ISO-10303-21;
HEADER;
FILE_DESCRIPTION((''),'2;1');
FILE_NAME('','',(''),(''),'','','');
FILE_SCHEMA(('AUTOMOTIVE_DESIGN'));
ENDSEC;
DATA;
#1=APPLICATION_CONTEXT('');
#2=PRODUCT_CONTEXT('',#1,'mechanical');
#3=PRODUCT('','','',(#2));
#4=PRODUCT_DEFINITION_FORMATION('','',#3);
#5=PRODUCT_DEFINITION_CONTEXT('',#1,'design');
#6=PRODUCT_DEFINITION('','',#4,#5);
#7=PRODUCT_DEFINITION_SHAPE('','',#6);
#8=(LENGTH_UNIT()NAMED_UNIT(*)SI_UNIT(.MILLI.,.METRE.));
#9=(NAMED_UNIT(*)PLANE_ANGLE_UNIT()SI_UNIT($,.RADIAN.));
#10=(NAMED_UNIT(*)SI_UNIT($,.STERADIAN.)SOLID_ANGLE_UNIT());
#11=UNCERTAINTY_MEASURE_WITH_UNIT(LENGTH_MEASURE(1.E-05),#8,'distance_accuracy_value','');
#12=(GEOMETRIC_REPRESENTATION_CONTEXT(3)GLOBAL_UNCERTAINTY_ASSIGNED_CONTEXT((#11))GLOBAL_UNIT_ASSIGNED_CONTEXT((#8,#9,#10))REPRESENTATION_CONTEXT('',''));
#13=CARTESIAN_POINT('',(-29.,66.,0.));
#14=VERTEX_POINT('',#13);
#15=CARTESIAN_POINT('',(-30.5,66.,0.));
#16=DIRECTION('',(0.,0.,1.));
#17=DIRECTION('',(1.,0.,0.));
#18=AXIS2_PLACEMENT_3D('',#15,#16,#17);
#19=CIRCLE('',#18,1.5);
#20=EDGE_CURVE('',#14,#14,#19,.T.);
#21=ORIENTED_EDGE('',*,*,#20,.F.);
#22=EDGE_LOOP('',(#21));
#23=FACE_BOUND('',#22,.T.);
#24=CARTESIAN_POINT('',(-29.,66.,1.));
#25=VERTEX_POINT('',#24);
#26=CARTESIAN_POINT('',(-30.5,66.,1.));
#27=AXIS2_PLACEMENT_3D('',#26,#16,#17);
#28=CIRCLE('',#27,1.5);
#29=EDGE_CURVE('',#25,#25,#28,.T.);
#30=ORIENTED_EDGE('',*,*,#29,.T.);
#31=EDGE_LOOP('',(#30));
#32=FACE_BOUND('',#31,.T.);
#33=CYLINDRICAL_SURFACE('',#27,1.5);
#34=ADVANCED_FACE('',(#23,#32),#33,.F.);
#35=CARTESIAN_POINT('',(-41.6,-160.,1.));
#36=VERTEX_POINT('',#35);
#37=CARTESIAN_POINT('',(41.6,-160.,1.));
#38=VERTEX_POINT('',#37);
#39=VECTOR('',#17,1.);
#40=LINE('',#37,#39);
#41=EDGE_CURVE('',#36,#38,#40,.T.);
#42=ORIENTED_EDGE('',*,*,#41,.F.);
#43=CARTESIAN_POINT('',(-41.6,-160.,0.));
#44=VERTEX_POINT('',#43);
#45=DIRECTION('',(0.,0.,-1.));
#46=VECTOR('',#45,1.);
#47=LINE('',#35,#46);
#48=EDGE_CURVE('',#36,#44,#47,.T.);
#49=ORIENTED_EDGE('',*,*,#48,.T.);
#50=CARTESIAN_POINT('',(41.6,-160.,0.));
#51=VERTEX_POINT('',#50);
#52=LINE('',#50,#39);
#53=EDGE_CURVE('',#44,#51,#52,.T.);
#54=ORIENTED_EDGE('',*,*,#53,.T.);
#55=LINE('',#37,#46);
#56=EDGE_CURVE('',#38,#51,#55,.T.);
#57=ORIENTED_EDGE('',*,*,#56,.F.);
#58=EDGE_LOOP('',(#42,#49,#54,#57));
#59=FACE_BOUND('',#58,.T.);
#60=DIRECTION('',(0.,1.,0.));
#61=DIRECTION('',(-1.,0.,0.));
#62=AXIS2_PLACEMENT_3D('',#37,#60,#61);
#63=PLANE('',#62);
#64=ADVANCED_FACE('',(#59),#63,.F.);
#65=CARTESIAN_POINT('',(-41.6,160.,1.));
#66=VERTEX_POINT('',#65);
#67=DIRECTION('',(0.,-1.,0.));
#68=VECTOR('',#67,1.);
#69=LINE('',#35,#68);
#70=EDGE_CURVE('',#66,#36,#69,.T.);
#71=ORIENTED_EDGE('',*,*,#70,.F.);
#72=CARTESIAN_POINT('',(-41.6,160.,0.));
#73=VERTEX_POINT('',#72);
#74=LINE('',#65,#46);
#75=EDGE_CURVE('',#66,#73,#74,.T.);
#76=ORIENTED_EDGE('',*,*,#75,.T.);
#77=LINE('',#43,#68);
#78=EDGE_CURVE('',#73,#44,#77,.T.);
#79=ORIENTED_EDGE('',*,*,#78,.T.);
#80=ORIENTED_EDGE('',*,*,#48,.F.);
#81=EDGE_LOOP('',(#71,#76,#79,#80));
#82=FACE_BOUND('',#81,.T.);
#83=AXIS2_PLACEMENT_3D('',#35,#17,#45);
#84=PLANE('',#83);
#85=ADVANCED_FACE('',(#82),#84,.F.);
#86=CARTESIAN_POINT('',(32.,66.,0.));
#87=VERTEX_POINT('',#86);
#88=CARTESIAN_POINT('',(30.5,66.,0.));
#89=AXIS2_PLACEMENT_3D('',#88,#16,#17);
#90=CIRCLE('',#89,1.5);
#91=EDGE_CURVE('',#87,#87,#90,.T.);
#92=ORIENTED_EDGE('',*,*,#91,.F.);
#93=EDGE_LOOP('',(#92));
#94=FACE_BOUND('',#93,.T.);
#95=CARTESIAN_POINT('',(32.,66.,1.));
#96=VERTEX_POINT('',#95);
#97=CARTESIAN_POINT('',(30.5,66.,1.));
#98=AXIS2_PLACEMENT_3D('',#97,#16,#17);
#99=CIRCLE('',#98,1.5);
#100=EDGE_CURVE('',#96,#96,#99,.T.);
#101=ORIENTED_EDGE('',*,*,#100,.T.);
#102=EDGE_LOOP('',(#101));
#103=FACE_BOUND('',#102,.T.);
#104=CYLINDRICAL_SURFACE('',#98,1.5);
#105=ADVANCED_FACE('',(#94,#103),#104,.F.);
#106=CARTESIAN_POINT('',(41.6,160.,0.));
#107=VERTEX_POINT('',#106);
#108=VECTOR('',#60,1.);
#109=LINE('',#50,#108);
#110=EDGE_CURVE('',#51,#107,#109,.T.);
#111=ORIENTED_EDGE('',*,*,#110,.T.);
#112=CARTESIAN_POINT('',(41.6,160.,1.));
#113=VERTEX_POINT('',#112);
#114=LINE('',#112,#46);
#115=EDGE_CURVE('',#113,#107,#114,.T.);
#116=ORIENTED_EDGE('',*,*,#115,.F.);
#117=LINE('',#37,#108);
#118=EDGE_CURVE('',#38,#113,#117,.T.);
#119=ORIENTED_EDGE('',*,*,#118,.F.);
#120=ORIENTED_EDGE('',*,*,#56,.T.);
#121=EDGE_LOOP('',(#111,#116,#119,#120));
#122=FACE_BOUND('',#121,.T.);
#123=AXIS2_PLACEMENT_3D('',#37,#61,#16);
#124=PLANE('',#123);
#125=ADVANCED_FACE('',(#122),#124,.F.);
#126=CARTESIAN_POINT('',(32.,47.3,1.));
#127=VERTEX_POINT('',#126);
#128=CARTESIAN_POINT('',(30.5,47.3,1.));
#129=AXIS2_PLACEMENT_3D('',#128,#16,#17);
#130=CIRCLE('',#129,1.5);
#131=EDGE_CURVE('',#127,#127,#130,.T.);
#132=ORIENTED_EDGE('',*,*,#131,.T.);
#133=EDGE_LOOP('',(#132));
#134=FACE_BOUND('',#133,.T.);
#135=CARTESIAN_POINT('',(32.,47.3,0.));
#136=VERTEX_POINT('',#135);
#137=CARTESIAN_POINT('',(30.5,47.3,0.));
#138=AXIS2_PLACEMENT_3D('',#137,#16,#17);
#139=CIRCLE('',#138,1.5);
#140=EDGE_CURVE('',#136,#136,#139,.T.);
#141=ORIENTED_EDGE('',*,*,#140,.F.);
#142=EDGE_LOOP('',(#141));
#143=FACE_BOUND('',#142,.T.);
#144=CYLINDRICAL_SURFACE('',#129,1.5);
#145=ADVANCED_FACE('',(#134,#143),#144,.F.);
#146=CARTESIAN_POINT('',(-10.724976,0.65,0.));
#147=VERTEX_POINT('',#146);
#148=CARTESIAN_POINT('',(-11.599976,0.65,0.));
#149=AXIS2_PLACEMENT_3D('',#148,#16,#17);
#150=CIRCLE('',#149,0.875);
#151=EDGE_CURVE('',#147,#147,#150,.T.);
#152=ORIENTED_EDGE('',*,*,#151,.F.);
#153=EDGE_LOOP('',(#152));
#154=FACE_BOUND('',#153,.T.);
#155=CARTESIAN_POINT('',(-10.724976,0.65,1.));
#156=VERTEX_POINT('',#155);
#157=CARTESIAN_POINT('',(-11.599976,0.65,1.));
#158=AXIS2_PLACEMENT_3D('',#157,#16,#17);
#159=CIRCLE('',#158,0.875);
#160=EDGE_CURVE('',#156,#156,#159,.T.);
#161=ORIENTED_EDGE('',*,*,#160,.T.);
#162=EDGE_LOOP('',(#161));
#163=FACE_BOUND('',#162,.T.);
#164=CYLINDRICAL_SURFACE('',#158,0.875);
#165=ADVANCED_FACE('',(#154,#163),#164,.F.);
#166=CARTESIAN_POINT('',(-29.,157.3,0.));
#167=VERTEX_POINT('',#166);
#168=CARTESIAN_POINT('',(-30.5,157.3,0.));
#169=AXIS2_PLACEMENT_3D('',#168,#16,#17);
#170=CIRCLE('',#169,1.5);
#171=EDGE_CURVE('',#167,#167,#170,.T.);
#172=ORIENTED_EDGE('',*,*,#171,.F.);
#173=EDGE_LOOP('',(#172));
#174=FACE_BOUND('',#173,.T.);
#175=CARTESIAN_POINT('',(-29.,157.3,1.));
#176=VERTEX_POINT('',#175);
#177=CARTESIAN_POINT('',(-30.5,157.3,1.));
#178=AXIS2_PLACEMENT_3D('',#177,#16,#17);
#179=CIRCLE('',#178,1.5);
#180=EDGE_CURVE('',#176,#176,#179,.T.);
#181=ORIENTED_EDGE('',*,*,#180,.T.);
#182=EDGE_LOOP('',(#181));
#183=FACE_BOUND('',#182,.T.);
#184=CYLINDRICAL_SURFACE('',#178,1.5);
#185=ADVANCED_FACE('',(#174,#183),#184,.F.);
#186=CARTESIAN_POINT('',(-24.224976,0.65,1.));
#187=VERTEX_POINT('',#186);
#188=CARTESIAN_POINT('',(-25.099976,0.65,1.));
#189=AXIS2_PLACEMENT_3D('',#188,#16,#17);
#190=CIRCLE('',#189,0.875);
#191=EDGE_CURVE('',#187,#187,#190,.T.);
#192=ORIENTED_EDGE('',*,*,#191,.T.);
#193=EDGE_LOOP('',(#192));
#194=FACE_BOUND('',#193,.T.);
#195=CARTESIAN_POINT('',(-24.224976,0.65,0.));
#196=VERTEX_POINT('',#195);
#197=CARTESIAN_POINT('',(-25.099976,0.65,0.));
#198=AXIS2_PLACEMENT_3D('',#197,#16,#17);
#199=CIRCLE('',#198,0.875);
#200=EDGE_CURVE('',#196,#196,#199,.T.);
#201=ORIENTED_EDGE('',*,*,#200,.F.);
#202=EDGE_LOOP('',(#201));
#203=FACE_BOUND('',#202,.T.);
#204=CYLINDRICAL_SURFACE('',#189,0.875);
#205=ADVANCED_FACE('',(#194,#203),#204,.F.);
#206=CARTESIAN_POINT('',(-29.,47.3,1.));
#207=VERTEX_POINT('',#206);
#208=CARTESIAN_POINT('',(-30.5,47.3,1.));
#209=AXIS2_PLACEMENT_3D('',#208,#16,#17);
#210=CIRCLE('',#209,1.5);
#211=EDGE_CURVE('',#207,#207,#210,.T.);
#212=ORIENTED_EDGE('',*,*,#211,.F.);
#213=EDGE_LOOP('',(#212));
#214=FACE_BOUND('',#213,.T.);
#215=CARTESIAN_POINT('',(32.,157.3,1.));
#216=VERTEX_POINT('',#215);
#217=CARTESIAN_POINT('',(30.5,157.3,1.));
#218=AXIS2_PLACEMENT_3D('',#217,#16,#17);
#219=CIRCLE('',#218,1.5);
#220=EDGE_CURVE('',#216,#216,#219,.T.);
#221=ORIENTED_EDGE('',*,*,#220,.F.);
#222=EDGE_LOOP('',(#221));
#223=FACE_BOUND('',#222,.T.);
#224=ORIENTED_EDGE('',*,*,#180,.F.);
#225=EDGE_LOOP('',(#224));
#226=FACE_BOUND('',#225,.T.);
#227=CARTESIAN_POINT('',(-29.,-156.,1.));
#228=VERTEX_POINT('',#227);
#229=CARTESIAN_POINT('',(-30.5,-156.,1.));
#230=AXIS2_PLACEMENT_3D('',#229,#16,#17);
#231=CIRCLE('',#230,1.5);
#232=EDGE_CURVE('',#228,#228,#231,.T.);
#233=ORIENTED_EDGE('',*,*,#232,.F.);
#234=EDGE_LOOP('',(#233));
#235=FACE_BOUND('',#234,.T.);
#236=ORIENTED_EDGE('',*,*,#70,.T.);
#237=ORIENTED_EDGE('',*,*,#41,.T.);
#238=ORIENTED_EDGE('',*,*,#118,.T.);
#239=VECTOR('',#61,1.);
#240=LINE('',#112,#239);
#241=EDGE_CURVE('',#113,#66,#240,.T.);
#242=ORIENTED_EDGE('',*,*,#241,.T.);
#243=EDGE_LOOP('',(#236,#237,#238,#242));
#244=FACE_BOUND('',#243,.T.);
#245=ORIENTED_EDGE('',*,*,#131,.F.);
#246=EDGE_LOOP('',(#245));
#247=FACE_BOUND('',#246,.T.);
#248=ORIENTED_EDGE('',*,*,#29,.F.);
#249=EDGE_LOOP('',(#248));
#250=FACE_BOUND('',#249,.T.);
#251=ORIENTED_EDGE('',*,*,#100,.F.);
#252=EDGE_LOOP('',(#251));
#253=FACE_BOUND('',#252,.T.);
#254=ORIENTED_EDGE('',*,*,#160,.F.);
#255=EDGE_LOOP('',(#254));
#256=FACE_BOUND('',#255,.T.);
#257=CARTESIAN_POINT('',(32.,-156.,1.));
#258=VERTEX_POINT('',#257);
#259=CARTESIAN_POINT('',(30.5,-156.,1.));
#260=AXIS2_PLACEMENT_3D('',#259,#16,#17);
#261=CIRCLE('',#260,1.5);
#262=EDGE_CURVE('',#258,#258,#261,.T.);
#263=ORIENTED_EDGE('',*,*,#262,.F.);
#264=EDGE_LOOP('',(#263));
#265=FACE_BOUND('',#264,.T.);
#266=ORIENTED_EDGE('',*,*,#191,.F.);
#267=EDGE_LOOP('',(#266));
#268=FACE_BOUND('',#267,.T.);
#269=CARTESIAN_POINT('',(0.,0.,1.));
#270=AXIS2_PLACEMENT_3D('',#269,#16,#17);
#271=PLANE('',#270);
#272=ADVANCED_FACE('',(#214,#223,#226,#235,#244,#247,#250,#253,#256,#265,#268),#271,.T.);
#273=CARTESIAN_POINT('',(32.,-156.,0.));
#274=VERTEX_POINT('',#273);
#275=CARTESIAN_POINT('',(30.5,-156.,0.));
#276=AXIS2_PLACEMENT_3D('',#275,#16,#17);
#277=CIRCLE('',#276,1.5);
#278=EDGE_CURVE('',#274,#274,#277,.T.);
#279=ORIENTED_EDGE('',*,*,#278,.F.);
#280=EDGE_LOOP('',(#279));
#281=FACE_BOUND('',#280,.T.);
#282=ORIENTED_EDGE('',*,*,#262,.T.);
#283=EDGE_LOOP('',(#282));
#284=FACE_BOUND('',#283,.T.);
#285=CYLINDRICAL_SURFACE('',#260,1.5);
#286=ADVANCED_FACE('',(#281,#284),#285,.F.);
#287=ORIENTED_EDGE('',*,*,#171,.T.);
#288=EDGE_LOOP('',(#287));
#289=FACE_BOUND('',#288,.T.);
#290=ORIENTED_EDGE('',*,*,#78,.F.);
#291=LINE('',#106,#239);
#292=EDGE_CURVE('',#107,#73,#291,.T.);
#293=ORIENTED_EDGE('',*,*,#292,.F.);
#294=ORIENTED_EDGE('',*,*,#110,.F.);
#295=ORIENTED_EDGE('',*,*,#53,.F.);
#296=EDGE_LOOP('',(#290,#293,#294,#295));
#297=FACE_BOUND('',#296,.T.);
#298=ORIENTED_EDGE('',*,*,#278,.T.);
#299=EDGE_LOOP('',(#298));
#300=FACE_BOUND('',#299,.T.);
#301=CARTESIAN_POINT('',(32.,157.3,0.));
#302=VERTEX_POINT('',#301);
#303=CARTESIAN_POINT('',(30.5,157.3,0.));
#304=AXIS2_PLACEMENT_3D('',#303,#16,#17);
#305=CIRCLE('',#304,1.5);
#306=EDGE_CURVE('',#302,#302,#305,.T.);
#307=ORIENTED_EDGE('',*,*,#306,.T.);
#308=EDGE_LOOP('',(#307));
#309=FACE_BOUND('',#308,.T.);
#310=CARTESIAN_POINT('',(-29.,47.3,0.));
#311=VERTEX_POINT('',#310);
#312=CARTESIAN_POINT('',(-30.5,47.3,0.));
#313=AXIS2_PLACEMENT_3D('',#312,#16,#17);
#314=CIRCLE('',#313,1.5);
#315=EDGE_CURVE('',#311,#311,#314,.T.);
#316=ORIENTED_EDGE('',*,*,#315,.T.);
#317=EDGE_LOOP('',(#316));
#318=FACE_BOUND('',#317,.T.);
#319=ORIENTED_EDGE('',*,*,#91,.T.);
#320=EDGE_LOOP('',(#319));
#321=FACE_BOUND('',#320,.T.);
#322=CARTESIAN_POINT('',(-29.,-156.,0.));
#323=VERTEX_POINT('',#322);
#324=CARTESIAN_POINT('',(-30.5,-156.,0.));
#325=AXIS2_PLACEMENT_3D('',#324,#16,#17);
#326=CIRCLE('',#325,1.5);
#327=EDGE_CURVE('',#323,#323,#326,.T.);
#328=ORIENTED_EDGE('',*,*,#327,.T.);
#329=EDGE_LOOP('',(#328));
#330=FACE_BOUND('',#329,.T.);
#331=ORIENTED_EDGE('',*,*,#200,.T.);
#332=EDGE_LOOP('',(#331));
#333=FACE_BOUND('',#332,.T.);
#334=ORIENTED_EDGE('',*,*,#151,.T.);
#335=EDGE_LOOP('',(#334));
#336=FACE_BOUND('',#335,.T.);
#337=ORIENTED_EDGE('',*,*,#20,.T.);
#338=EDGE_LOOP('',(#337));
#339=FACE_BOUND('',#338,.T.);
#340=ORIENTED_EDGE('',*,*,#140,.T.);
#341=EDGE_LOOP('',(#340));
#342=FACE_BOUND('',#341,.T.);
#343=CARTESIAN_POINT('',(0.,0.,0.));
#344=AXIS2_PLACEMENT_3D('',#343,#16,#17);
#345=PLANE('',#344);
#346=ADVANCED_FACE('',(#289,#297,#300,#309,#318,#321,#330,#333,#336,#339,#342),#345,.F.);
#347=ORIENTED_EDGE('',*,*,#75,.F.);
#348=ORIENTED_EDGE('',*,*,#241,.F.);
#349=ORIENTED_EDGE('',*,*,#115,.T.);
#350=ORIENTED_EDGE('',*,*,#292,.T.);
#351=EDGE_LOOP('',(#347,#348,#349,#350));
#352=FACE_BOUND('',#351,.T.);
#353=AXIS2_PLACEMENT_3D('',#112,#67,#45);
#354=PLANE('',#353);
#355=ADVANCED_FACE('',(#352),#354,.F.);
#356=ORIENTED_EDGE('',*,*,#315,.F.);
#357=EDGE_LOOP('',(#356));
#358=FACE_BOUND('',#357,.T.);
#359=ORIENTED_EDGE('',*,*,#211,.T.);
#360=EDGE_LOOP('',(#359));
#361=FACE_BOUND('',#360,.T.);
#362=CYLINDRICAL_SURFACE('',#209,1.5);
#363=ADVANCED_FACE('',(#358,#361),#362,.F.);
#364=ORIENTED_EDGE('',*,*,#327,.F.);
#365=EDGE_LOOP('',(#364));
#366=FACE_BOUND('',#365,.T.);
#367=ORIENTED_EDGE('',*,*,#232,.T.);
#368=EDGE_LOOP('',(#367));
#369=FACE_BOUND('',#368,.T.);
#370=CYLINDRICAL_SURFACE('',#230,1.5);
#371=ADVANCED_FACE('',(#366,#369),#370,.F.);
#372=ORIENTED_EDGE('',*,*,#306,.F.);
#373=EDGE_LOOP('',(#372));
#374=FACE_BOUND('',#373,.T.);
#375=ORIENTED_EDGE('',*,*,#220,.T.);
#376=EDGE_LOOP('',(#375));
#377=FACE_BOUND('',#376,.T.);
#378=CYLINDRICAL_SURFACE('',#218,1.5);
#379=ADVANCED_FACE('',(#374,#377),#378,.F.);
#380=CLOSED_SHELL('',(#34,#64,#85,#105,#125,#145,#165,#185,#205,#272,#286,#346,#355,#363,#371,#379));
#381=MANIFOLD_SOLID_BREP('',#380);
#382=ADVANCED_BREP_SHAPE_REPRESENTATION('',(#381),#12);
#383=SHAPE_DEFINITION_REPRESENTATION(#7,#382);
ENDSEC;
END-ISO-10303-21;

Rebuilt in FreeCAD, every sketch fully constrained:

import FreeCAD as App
import Part
import Sketcher

V = App.Vector
Q = App.Units.Quantity


def add_polygon(sketch, points):
    """Adds a closed chain of lines whose ends are joined by coincident constraints."""
    first, n = sketch.GeometryCount, len(points)
    for a, b in zip(points, points[1:] + points[:1]):
        sketch.addGeometry(Part.LineSegment(App.Vector(*a, 0), App.Vector(*b, 0)), False)
    for i in range(n):
        sketch.addConstraint(Sketcher.Constraint("Coincident", first + i, 2, first + (i + 1) % n, 1))

doc = App.newDocument("Part")
body = doc.addObject("PartDesign::Body", "Body")

# Sketch on XY plane
sketch1 = body.newObject("Sketcher::SketchObject", "Sketch")
sketch1.AttachmentSupport = (doc.getObject("XY_Plane"), [""])
sketch1.MapMode = "FlatFace"
add_polygon(sketch1, [(-42, 160), (-42, -160), (42, -160), (42, 160)])  # lines 0-3
sketch1.addConstraint(Sketcher.Constraint("Vertical", 0))
sketch1.addConstraint(Sketcher.Constraint("Horizontal", 1))
sketch1.addConstraint(Sketcher.Constraint("Vertical", 2))
sketch1.addConstraint(Sketcher.Constraint("Horizontal", 3))
sketch1.addConstraint(Sketcher.Constraint("Symmetric", 0, 2, 2, 2, -1, 1))
sketch1.addConstraint(Sketcher.Constraint("DistanceY", 0, 2, 0, 1, Q("320 mm")))
sketch1.addConstraint(Sketcher.Constraint("DistanceX", 1, 1, 1, 2, Q("83.2 mm")))
pad1 = body.newObject("PartDesign::Pad", "Pad")
pad1.Profile = sketch1
pad1.Length = 1

# Sketch on XY plane
sketch2 = body.newObject("Sketcher::SketchObject", "Sketch001")
sketch2.AttachmentSupport = (doc.getObject("XY_Plane"), [""])
sketch2.MapMode = "FlatFace"
sketch2.AttachmentOffset = App.Placement(V(0, 0, 1), App.Rotation())
sketch2.addGeometry(Part.Circle(V(-30.5, 66, 0), V(0, 0, 1), 1.5), False)
sketch2.addGeometry(Part.Circle(V(30.5, 66, 0), V(0, 0, 1), 1.5), False)
sketch2.addGeometry(Part.Circle(V(30.5, -156, 0), V(0, 0, 1), 1.5), False)
sketch2.addGeometry(Part.Circle(V(-30.5, -156, 0), V(0, 0, 1), 1.5), False)
sketch2.addGeometry(Part.Circle(V(-30.5, 157.3, 0), V(0, 0, 1), 1.5), False)
sketch2.addGeometry(Part.Circle(V(30.5, 157.3, 0), V(0, 0, 1), 1.5), False)
sketch2.addGeometry(Part.Circle(V(-30.5, 47.3, 0), V(0, 0, 1), 1.5), False)
sketch2.addGeometry(Part.Circle(V(30.5, 47.3, 0), V(0, 0, 1), 1.5), False)
sketch2.addConstraint(Sketcher.Constraint("Equal", 0, 1))
sketch2.addConstraint(Sketcher.Constraint("Equal", 1, 2))
sketch2.addConstraint(Sketcher.Constraint("Equal", 2, 3))
sketch2.addConstraint(Sketcher.Constraint("Equal", 3, 4))
sketch2.addConstraint(Sketcher.Constraint("Equal", 4, 5))
sketch2.addConstraint(Sketcher.Constraint("Equal", 5, 6))
sketch2.addConstraint(Sketcher.Constraint("Equal", 6, 7))
sketch2.addConstraint(Sketcher.Constraint("Symmetric", 0, 3, 1, 3, -2))
sketch2.addConstraint(Sketcher.Constraint("Symmetric", 2, 3, 3, 3, -2))
sketch2.addConstraint(Sketcher.Constraint("Symmetric", 4, 3, 5, 3, -2))
sketch2.addConstraint(Sketcher.Constraint("Symmetric", 6, 3, 7, 3, -2))
sketch2.addConstraint(Sketcher.Constraint("Vertical", 1, 3, 2, 3))
sketch2.addConstraint(Sketcher.Constraint("Vertical", 3, 3, 4, 3))
sketch2.addConstraint(Sketcher.Constraint("Vertical", 4, 3, 6, 3))
sketch2.addConstraint(Sketcher.Constraint("Diameter", 0, Q("3 mm")))
sketch2.addConstraint(Sketcher.Constraint("DistanceY", -1, 1, 0, 3, Q("66 mm")))
sketch2.addConstraint(Sketcher.Constraint("DistanceY", 2, 3, -1, 1, Q("156 mm")))
sketch2.addConstraint(Sketcher.Constraint("DistanceX", 0, 3, 1, 3, Q("61 mm")))
sketch2.addConstraint(Sketcher.Constraint("DistanceY", 6, 3, 4, 3, Q("110 mm")))
sketch2.addConstraint(Sketcher.Constraint("DistanceY", -1, 1, 4, 3, Q("157.3 mm")))
doc.recompute()
hole = body.newObject("PartDesign::Hole", "Hole")
hole.Profile = sketch2
hole.ThreadType = "None"
hole.Diameter = 3
hole.DepthType = "ThroughAll"

# Sketch on XY plane
sketch3 = body.newObject("Sketcher::SketchObject", "Sketch002")
sketch3.AttachmentSupport = (doc.getObject("XY_Plane"), [""])
sketch3.MapMode = "FlatFace"
sketch3.AttachmentOffset = App.Placement(V(0, 0, 1), App.Rotation())
sketch3.addGeometry(Part.Circle(V(-25.099976, 0.65, 0), V(0, 0, 1), 0.875), False)
sketch3.addGeometry(Part.Circle(V(-11.599976, 0.65, 0), V(0, 0, 1), 0.875), False)
sketch3.addConstraint(Sketcher.Constraint("Equal", 0, 1))
sketch3.addConstraint(Sketcher.Constraint("Horizontal", 0, 3, 1, 3))
sketch3.addConstraint(Sketcher.Constraint("Diameter", 0, Q("1.75 mm")))
sketch3.addConstraint(Sketcher.Constraint("DistanceX", 0, 3, 1, 3, Q("13.5 mm")))
sketch3.addConstraint(Sketcher.Constraint("DistanceY", -1, 1, 0, 3, Q("0.65 mm")))
sketch3.addConstraint(Sketcher.Constraint("DistanceX", 0, 3, -1, 1, Q("25.099976 mm")))
doc.recompute()
hole2 = body.newObject("PartDesign::Hole", "Hole001")
hole2.Profile = sketch3
hole2.ThreadType = "None"
hole2.Diameter = 1.75
hole2.DepthType = "ThroughAll"

doc.recompute()
